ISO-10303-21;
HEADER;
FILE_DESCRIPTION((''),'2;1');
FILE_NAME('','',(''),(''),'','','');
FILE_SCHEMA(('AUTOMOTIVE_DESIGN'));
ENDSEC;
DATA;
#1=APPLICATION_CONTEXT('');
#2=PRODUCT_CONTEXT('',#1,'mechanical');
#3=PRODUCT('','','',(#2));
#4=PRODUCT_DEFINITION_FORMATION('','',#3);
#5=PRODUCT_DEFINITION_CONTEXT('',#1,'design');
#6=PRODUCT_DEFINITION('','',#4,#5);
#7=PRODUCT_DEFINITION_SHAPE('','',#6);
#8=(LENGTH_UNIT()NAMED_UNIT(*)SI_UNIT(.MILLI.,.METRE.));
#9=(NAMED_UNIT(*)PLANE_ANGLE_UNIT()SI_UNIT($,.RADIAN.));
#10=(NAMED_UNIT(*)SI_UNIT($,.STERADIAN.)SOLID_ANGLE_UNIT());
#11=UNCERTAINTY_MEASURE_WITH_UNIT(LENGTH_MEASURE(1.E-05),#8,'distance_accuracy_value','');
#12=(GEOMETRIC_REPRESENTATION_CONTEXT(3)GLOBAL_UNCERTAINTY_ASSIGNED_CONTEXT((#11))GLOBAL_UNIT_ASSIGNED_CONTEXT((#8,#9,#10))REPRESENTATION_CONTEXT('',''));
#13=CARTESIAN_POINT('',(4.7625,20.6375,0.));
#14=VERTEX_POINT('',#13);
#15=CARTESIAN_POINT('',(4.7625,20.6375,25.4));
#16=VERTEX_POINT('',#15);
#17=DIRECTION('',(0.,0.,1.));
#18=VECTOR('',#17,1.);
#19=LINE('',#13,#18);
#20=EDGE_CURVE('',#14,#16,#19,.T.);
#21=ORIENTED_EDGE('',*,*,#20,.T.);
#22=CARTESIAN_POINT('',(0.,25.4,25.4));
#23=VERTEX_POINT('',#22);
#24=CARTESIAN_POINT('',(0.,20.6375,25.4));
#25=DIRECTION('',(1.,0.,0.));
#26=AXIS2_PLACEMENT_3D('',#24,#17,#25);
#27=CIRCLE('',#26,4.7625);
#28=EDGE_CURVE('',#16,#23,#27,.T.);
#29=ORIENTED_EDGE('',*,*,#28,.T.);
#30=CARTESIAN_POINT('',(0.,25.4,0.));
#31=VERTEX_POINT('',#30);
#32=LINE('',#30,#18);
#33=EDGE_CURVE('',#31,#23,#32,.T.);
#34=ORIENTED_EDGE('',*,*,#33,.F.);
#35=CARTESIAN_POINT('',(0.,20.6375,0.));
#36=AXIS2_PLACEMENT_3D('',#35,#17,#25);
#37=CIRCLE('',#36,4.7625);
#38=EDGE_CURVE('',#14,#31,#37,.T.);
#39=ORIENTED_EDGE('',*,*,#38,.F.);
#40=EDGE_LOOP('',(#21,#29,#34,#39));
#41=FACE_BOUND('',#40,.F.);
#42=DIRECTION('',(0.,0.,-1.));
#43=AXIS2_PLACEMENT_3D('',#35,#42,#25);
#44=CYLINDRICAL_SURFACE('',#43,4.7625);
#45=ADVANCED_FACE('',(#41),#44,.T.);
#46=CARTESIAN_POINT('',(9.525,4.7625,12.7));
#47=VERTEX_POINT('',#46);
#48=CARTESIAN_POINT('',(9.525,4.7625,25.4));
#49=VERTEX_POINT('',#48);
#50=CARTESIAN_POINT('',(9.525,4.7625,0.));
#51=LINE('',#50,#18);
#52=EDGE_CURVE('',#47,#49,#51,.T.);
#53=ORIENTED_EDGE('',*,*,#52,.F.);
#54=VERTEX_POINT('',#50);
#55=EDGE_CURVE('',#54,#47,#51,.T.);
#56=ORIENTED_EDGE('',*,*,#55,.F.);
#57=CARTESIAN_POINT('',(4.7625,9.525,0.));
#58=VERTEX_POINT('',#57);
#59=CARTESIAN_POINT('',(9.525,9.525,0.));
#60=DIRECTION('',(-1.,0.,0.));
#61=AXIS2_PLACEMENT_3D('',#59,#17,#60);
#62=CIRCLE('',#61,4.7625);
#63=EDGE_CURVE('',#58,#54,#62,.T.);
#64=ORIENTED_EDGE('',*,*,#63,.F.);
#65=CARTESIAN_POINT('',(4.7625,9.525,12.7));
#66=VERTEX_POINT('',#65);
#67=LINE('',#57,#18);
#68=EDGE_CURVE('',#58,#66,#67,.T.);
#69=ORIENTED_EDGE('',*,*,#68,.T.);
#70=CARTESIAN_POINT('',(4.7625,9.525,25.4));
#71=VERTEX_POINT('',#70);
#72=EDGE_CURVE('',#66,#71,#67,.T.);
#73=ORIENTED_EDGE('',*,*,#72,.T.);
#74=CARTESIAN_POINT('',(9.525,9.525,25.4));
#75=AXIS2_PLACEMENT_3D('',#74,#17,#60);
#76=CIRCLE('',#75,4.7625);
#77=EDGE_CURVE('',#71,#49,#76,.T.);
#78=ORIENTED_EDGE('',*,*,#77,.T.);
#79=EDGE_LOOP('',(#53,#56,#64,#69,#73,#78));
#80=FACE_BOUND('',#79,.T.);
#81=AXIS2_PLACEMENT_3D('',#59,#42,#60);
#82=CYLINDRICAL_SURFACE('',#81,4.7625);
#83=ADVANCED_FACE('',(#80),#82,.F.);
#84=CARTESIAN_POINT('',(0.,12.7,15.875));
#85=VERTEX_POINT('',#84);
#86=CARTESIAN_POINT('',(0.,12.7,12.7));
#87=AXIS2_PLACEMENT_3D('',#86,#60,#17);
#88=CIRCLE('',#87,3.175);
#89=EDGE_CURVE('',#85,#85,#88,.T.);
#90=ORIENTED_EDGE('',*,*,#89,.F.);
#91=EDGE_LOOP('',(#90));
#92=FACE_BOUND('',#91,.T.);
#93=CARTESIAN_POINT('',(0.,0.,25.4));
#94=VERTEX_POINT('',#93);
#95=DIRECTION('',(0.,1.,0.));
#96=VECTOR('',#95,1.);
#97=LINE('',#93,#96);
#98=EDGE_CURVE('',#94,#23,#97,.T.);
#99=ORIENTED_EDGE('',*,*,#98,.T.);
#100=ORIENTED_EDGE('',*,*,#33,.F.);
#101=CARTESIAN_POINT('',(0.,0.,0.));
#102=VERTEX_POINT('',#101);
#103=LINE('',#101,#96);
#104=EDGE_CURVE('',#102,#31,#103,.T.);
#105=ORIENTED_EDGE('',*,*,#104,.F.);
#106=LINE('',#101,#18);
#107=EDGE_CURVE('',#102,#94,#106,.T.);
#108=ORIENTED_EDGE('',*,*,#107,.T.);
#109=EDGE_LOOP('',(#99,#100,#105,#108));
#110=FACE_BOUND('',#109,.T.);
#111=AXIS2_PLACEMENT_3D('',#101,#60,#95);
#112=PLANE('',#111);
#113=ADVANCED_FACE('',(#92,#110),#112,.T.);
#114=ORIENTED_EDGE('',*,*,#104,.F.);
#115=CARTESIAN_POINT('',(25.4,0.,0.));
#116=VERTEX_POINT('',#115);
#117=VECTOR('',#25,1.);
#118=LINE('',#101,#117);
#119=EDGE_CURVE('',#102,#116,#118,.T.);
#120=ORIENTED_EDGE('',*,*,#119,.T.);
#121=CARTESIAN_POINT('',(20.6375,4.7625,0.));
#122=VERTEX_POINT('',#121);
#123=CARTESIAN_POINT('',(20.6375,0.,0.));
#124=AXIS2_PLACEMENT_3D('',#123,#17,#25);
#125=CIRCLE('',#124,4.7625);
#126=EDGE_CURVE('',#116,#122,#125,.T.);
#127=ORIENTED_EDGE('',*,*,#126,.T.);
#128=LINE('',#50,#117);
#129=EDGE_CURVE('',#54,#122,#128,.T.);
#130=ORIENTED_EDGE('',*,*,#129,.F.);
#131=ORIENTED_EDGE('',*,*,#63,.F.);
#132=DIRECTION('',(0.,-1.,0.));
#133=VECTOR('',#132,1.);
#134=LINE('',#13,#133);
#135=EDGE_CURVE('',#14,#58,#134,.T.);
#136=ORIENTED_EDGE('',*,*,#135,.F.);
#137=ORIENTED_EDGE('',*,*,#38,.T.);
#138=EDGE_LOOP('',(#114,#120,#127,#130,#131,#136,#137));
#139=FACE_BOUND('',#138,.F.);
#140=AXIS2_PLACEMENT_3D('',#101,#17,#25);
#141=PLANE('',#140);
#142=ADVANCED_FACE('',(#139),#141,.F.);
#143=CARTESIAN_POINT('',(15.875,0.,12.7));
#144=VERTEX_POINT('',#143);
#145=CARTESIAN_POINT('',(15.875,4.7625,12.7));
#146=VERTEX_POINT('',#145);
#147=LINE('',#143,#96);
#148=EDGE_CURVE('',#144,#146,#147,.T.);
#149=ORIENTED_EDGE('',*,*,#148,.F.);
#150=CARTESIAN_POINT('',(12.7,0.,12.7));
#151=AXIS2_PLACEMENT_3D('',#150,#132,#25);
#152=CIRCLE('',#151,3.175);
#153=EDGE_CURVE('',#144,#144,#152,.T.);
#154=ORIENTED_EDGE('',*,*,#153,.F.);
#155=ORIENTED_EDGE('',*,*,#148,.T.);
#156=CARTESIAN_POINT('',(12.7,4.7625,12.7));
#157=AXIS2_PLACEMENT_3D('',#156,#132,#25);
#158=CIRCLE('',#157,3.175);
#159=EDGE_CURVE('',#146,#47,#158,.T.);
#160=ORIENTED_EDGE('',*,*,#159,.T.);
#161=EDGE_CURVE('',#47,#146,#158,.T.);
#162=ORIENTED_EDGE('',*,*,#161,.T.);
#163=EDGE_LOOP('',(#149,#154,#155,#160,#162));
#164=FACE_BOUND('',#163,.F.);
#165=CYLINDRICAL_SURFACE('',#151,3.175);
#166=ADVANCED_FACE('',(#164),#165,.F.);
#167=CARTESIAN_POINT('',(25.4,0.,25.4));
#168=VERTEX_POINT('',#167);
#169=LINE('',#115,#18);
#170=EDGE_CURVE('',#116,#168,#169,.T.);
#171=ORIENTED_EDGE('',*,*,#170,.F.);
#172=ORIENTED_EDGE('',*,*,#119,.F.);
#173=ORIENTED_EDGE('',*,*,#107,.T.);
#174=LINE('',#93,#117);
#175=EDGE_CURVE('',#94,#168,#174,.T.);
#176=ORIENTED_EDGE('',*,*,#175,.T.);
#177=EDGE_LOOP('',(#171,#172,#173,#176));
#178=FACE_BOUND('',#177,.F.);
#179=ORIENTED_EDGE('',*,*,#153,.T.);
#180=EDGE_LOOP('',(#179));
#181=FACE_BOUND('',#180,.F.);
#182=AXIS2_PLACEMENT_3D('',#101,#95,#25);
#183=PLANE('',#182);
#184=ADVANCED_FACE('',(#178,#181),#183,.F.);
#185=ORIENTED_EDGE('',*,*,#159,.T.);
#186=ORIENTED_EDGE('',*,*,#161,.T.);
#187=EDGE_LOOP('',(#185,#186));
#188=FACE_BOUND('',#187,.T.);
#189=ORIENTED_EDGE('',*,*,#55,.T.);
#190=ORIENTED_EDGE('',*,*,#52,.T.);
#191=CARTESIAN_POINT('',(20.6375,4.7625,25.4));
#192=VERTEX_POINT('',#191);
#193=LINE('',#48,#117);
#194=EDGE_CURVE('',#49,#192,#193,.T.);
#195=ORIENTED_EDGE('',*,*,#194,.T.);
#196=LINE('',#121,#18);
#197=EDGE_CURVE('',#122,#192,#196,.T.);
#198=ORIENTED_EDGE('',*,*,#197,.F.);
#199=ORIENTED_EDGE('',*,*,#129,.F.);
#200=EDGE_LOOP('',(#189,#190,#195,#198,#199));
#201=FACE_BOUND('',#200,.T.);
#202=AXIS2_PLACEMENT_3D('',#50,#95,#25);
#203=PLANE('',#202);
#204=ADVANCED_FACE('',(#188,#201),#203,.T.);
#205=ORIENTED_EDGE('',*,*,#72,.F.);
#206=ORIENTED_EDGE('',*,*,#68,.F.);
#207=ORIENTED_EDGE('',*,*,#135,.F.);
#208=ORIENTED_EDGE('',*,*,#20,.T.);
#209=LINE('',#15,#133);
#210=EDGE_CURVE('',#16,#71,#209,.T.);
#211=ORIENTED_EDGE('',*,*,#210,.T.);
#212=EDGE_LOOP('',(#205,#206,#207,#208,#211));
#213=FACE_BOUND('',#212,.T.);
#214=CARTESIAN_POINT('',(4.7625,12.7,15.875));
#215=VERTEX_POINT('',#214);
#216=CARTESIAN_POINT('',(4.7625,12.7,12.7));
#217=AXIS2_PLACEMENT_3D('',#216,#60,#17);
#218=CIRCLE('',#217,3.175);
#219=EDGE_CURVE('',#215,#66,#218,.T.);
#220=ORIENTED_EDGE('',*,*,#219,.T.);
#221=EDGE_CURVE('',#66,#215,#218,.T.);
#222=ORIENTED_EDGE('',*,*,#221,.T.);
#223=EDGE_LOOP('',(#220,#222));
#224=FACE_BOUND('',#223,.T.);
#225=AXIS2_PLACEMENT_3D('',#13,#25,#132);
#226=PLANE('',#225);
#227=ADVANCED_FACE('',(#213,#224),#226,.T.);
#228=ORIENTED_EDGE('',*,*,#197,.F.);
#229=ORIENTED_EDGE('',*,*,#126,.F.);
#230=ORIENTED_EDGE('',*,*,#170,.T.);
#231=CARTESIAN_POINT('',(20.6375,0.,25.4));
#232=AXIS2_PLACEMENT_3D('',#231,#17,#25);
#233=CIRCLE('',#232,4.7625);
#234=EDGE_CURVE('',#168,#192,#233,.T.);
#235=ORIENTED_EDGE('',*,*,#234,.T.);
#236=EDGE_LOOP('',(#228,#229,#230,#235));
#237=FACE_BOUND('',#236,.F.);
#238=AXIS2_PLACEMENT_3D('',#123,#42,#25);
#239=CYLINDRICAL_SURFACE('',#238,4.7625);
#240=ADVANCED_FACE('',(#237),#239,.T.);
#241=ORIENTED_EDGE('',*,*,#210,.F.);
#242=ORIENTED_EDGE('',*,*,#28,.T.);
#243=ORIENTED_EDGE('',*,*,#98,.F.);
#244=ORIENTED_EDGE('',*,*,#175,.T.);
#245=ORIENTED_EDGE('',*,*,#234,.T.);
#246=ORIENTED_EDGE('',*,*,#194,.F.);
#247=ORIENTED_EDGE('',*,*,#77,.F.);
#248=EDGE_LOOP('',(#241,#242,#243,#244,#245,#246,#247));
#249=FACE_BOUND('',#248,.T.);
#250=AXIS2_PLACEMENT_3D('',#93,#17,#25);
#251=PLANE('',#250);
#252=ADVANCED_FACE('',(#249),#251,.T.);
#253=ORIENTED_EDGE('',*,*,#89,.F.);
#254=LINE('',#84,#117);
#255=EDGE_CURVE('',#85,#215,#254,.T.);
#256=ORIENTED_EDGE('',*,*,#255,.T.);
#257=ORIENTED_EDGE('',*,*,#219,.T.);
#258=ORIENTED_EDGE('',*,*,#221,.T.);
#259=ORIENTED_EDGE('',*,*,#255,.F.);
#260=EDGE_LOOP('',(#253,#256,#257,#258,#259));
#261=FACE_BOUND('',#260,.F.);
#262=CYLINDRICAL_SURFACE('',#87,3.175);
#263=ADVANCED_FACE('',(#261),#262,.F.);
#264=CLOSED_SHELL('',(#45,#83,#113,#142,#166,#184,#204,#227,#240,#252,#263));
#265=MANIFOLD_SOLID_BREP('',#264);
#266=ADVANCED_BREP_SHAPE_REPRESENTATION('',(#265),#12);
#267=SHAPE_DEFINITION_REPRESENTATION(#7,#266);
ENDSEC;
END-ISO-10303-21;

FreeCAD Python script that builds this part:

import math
import FreeCAD as App
import Part
import Sketcher

V = App.Vector
Q = App.Units.Quantity

doc = App.newDocument("Part")
body = doc.addObject("PartDesign::Body", "Body")

# Sketch on XY plane
sketch1 = body.newObject("Sketcher::SketchObject", "Sketch")
sketch1.AttachmentSupport = (doc.getObject("XY_Plane"), [""])
sketch1.MapMode = "FlatFace"
sketch1.addGeometry([
    Part.LineSegment(V(0, 25.4, 0), V(0, 0, 0)),  # 0
    Part.LineSegment(V(0, 0, 0), V(25.4, 0, 0)),  # 1
    Part.ArcOfCircle(Part.Circle(V(20.6, 0, 0), V(0, 0, 1), 4.8), math.radians(0), math.radians(90)),  # 2
    Part.LineSegment(V(20.6, 4.8, 0), V(9.5, 4.8, 0)),  # 3
    Part.ArcOfCircle(Part.Circle(V(9.5, 9.5, 0), V(0, 0, 1), 4.8), math.radians(180), math.radians(270)),  # 4
    Part.LineSegment(V(4.8, 9.5, 0), V(4.8, 20.6, 0)),  # 5
    Part.ArcOfCircle(Part.Circle(V(0, 20.6, 0), V(0, 0, 1), 4.8), math.radians(0), math.radians(90)),  # 6
], False)
sketch1.addConstraint([
    Sketcher.Constraint("Coincident", 0, 2, 1, 1),
    Sketcher.Constraint("Coincident", 1, 2, 2, 1),
    Sketcher.Constraint("Tangent", 2, 2, 3, 1),
    Sketcher.Constraint("Tangent", 3, 2, 4, 2),
    Sketcher.Constraint("Tangent", 4, 1, 5, 1),
    Sketcher.Constraint("Tangent", 5, 2, 6, 1),
    Sketcher.Constraint("Coincident", 6, 2, 0, 1),
    Sketcher.Constraint("Vertical", 0),
    Sketcher.Constraint("Horizontal", 1),
    Sketcher.Constraint("Horizontal", 3),
    Sketcher.Constraint("Vertical", 5),
    Sketcher.Constraint("Coincident", 0, 2, -1, 1),
    Sketcher.Constraint("Equal", 2, 4),
    Sketcher.Constraint("Equal", 4, 6),
    Sketcher.Constraint("PointOnObject", 2, 3, -1),
    Sketcher.Constraint("PointOnObject", 6, 3, -2),
    Sketcher.Constraint("Equal", 1, 0),
    Sketcher.Constraint("DistanceX", 1, 1, 1, 2, Q("1 in")),
    Sketcher.Constraint("Radius", 2, Q("0.1875 in")),
])
pad1 = body.newObject("PartDesign::Pad", "Pad")
pad1.Profile = sketch1
pad1.Length = Q("1 in")

# Sketch on XZ plane
sketch2 = body.newObject("Sketcher::SketchObject", "Sketch001")
sketch2.AttachmentSupport = (doc.getObject("XZ_Plane"), [""])
sketch2.MapMode = "FlatFace"
sketch2.addGeometry(Part.Circle(V(12.7, 12.7, 0), V(0, 0, 1), 3.2), False)
sketch2.addConstraint([
    Sketcher.Constraint("Diameter", 0, Q("0.25 in")),
    Sketcher.Constraint("DistanceX", -1, 1, 0, 3, Q("0.5 in")),
    Sketcher.Constraint("DistanceY", -1, 1, 0, 3, Q("0.5 in")),
])
pocket1 = body.newObject("PartDesign::Pocket", "Pocket")
pocket1.Profile = sketch2
pocket1.Length = Q("1 in")

# Sketch on YZ plane
sketch3 = body.newObject("Sketcher::SketchObject", "Sketch002")
sketch3.AttachmentSupport = (doc.getObject("YZ_Plane"), [""])
sketch3.MapMode = "FlatFace"
sketch3.addGeometry(Part.Circle(V(12.7, 12.7, 0), V(0, 0, 1), 3.2), False)
sketch3.addConstraint([
    Sketcher.Constraint("Diameter", 0, Q("0.25 in")),
    Sketcher.Constraint("DistanceX", -1, 1, 0, 3, Q("0.5 in")),
    Sketcher.Constraint("DistanceY", -1, 1, 0, 3, Q("0.5 in")),
])
pocket2 = body.newObject("PartDesign::Pocket", "Pocket001")
pocket2.Profile = sketch3
pocket2.Length = Q("1 in")
pocket2.Reversed = True

doc.recompute()
